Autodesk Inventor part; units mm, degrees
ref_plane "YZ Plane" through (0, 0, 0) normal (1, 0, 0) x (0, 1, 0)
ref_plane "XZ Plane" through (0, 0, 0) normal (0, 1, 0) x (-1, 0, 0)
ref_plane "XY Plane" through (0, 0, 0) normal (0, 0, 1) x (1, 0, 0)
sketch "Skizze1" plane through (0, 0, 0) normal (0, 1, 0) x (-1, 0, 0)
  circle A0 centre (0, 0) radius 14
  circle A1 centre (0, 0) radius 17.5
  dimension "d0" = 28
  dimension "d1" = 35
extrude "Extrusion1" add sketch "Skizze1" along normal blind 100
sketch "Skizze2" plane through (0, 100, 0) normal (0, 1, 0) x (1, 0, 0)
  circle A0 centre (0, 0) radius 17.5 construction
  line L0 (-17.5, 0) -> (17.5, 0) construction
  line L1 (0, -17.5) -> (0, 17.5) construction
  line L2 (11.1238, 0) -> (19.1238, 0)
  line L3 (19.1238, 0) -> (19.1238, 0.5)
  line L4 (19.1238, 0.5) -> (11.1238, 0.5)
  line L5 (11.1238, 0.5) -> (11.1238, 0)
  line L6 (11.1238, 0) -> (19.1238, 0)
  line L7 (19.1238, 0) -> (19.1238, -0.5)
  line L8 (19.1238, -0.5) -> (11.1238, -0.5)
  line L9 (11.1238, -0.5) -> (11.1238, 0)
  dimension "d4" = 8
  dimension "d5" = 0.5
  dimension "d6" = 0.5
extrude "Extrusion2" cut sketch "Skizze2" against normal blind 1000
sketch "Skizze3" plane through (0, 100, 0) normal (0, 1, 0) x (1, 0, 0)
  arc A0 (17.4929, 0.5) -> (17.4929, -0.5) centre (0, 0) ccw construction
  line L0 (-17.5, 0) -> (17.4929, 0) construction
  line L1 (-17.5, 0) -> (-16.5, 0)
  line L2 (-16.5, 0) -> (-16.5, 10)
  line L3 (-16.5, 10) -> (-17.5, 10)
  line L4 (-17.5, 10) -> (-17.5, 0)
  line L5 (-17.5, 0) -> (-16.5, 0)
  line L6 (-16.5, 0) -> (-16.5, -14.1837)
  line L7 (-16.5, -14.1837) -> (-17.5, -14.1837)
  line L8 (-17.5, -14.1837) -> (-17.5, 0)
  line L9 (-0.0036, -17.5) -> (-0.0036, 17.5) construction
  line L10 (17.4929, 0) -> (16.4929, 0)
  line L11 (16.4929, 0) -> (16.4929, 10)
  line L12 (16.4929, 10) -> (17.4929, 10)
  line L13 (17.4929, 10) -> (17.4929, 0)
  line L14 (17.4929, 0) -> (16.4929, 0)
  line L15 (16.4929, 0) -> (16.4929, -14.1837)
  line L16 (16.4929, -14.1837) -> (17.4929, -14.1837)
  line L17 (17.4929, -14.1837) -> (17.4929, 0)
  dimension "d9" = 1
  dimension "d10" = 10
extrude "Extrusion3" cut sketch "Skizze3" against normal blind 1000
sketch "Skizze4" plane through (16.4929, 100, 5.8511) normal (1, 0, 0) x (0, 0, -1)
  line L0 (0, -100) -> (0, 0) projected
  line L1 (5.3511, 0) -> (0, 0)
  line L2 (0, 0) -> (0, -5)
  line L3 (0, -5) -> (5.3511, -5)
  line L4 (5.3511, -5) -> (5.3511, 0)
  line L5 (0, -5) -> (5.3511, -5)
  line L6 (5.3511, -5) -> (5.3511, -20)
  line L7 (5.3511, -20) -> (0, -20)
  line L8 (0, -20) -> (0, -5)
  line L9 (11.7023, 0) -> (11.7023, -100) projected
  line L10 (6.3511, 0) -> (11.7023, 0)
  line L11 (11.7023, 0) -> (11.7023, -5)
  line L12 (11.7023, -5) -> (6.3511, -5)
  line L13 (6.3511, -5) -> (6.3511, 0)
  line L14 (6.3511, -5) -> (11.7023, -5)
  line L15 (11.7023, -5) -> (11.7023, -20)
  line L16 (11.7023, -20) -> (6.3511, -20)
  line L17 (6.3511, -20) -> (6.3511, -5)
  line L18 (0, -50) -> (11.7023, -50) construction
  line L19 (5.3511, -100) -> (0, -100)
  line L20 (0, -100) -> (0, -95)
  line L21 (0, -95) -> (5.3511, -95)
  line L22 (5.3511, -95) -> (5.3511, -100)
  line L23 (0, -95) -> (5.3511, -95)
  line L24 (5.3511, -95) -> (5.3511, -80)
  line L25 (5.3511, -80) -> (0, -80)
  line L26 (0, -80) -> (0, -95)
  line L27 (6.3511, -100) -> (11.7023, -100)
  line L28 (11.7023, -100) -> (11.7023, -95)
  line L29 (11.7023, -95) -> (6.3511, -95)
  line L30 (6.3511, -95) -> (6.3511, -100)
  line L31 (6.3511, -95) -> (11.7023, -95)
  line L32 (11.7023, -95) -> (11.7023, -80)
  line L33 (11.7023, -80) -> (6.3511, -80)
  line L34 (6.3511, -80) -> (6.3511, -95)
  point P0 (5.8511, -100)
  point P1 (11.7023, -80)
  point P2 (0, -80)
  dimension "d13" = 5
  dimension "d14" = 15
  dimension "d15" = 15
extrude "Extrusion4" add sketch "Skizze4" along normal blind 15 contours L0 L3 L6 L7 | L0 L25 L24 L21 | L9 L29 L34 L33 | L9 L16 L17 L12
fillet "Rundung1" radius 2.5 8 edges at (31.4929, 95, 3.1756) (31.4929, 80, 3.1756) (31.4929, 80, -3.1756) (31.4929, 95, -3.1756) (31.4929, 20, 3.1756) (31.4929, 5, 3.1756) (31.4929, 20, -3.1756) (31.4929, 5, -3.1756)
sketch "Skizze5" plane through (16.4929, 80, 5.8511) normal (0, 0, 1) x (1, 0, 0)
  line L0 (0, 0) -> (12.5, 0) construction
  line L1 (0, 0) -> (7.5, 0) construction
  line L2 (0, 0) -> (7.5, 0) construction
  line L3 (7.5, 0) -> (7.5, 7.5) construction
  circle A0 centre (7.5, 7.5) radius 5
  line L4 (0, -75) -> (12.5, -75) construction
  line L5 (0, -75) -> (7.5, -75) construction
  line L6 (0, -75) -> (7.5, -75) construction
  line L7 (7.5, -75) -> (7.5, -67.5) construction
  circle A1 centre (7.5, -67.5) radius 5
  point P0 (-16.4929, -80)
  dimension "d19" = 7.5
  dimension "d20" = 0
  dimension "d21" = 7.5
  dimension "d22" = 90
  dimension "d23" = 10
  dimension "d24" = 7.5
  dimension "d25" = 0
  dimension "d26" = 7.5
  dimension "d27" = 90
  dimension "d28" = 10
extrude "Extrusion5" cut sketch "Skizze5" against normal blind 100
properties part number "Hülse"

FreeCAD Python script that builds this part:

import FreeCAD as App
import Part
import Sketcher

V = App.Vector


def edges_at(feature, points):
    """Names of the edges that pass closest to the given points."""
    edges = feature.Shape.Edges
    near = lambda p: min(range(len(edges)), key=lambda i: edges[i].distToShape(Part.Vertex(*p))[0])
    return sorted({f"Edge{near(p) + 1}" for p in points})

doc = App.newDocument("Part")
body = doc.addObject("PartDesign::Body", "Body")

sketch1 = body.newObject("Sketcher::SketchObject", "Sketch")
sketch1.AttachmentSupport = (doc.getObject("XZ_Plane"), [""])
sketch1.MapMode = "FlatFace"
sketch1.addGeometry([
    Part.Circle(V(0, 0, 0), V(0, 0, 1), 17.5),
    Part.Circle(V(0, 0, 0), V(0, 0, 1), 14),
], False)
sketch1.addConstraint([
    Sketcher.Constraint("Coincident", 0, 3, -1, 1),
    Sketcher.Constraint("Coincident", 1, 3, -1, 1),
    Sketcher.Constraint("Diameter", 0, 35.0),
    Sketcher.Constraint("Diameter", 1, 28.0),
])
pad1 = body.newObject("PartDesign::Pad", "Pad")
pad1.Profile = sketch1
pad1.Length = 100
pad1.Reversed = True

sketch2 = body.newObject("Sketcher::SketchObject", "Sketch001")
sketch2.AttachmentSupport = (doc.getObject("XZ_Plane"), [""])
sketch2.MapMode = "FlatFace"
sketch2.AttachmentOffset = App.Placement(V(0, 0, -100), App.Rotation())
sketch2.addGeometry([
    Part.LineSegment(V(11.1238, -0.5, 0), V(11.1238, 0.5, 0)),
    Part.LineSegment(V(11.1238, 0.5, 0), V(19.1238, 0.5, 0)),
    Part.LineSegment(V(19.1238, 0.5, 0), V(19.1238, -0.5, 0)),
    Part.LineSegment(V(19.1238, -0.5, 0), V(11.1238, -0.5, 0)),
], False)
sketch2.addConstraint([
    Sketcher.Constraint("Coincident", 0, 2, 1, 1),
    Sketcher.Constraint("Coincident", 1, 2, 2, 1),
    Sketcher.Constraint("Coincident", 2, 2, 3, 1),
    Sketcher.Constraint("Coincident", 3, 2, 0, 1),
    Sketcher.Constraint("Vertical", 0),
    Sketcher.Constraint("Horizontal", 1),
    Sketcher.Constraint("Vertical", 2),
    Sketcher.Constraint("Horizontal", 3),
    Sketcher.Constraint("DistanceX", 1, 1, 1, 2, 8.0),
    Sketcher.Constraint("DistanceY", -1, 1, 0, 2, 0.5),
    Sketcher.Constraint("DistanceY", 2, 2, -1, 1, 0.5),
    Sketcher.Constraint("DistanceX", -1, 1, 0, 2, 11.1238),
])
pocket1 = body.newObject("PartDesign::Pocket", "Pocket")
pocket1.Profile = sketch2
pocket1.Length = 1000
pocket1.Reversed = True

sketch3 = body.newObject("Sketcher::SketchObject", "Sketch002")
sketch3.AttachmentSupport = (doc.getObject("XZ_Plane"), [""])
sketch3.MapMode = "FlatFace"
sketch3.AttachmentOffset = App.Placement(V(0, 0, -100), App.Rotation())
sketch3.addGeometry([
    Part.LineSegment(V(-17.5, -10, 0), V(-17.5, 14.1837, 0)),
    Part.LineSegment(V(-17.5, 14.1837, 0), V(-16.5, 14.1837, 0)),
    Part.LineSegment(V(-16.5, 14.1837, 0), V(-16.5, -10, 0)),
    Part.LineSegment(V(-16.5, -10, 0), V(-17.5, -10, 0)),
    Part.LineSegment(V(17.4929, 14.1837, 0), V(17.4929, -10, 0)),
    Part.LineSegment(V(17.4929, -10, 0), V(16.4929, -10, 0)),
    Part.LineSegment(V(16.4929, -10, 0), V(16.4929, 14.1837, 0)),
    Part.LineSegment(V(16.4929, 14.1837, 0), V(17.4929, 14.1837, 0)),
], False)
sketch3.addConstraint([
    Sketcher.Constraint("Coincident", 0, 2, 1, 1),
    Sketcher.Constraint("Coincident", 1, 2, 2, 1),
    Sketcher.Constraint("Coincident", 2, 2, 3, 1),
    Sketcher.Constraint("Coincident", 3, 2, 0, 1),
    Sketcher.Constraint("Coincident", 4, 2, 5, 1),
    Sketcher.Constraint("Coincident", 5, 2, 6, 1),
    Sketcher.Constraint("Coincident", 6, 2, 7, 1),
    Sketcher.Constraint("Coincident", 7, 2, 4, 1),
    Sketcher.Constraint("Vertical", 0),
    Sketcher.Constraint("Horizontal", 1),
    Sketcher.Constraint("Vertical", 2),
    Sketcher.Constraint("Horizontal", 3),
    Sketcher.Constraint("Vertical", 4),
    Sketcher.Constraint("Horizontal", 5),
    Sketcher.Constraint("Vertical", 6),
    Sketcher.Constraint("Horizontal", 7),
    Sketcher.Constraint("Horizontal", 3, 2, 4, 2),
    Sketcher.Constraint("Horizontal", 1, 2, 6, 2),
    Sketcher.Constraint("Equal", 3, 5),
    Sketcher.Constraint("DistanceX", 1, 1, 1, 2, 1.0),
    Sketcher.Constraint("DistanceY", 2, 2, -1, 1, 10.0),
    Sketcher.Constraint("DistanceX", 0, 2, -1, 1, 17.5),
    Sketcher.Constraint("DistanceY", 0, 1, 0, 2, 24.1837),
    Sketcher.Constraint("DistanceX", -1, 1, 4, 2, 17.493),
])
pocket2 = body.newObject("PartDesign::Pocket", "Pocket001")
pocket2.Profile = sketch3
pocket2.Length = 1000
pocket2.Reversed = True

sketch4 = body.newObject("Sketcher::SketchObject", "Sketch003")
sketch4.AttachmentSupport = (doc.getObject("YZ_Plane"), [""])
sketch4.MapMode = "FlatFace"
sketch4.AttachmentOffset = App.Placement(V(0, 0, 16.4929), App.Rotation())
sketch4.addGeometry([
    Part.LineSegment(V(95, 5.8511, 0), V(80, 5.8511, 0)),
    Part.LineSegment(V(80, 5.8511, 0), V(80, 0.5, 0)),
    Part.LineSegment(V(80, 0.5, 0), V(95, 0.5, 0)),
    Part.LineSegment(V(95, 0.5, 0), V(95, 5.8511, 0)),
    Part.LineSegment(V(20, 5.8511, 0), V(5, 5.8511, 0)),
    Part.LineSegment(V(5, 5.8511, 0), V(5, 0.5, 0)),
    Part.LineSegment(V(5, 0.5, 0), V(20, 0.5, 0)),
    Part.LineSegment(V(20, 0.5, 0), V(20, 5.8511, 0)),
    Part.LineSegment(V(5, -5.8512, 0), V(20, -5.8512, 0)),
    Part.LineSegment(V(20, -5.8512, 0), V(20, -0.5, 0)),
    Part.LineSegment(V(20, -0.5, 0), V(5, -0.5, 0)),
    Part.LineSegment(V(5, -0.5, 0), V(5, -5.8512, 0)),
    Part.LineSegment(V(80, -5.8512, 0), V(95, -5.8512, 0)),
    Part.LineSegment(V(95, -5.8512, 0), V(95, -0.5, 0)),
    Part.LineSegment(V(95, -0.5, 0), V(80, -0.5, 0)),
    Part.LineSegment(V(80, -0.5, 0), V(80, -5.8512, 0)),
], False)
sketch4.addConstraint([
    Sketcher.Constraint("Coincident", 0, 2, 1, 1),
    Sketcher.Constraint("Coincident", 1, 2, 2, 1),
    Sketcher.Constraint("Coincident", 2, 2, 3, 1),
    Sketcher.Constraint("Coincident", 3, 2, 0, 1),
    Sketcher.Constraint("Coincident", 4, 2, 5, 1),
    Sketcher.Constraint("Coincident", 5, 2, 6, 1),
    Sketcher.Constraint("Coincident", 6, 2, 7, 1),
    Sketcher.Constraint("Coincident", 7, 2, 4, 1),
    Sketcher.Constraint("Coincident", 8, 2, 9, 1),
    Sketcher.Constraint("Coincident", 9, 2, 10, 1),
    Sketcher.Constraint("Coincident", 10, 2, 11, 1),
    Sketcher.Constraint("Coincident", 11, 2, 8, 1),
    Sketcher.Constraint("Coincident", 12, 2, 13, 1),
    Sketcher.Constraint("Coincident", 13, 2, 14, 1),
    Sketcher.Constraint("Coincident", 14, 2, 15, 1),
    Sketcher.Constraint("Coincident", 15, 2, 12, 1),
    Sketcher.Constraint("Horizontal", 0),
    Sketcher.Constraint("Vertical", 1),
    Sketcher.Constraint("Horizontal", 2),
    Sketcher.Constraint("Vertical", 3),
    Sketcher.Constraint("Horizontal", 4),
    Sketcher.Constraint("Vertical", 5),
    Sketcher.Constraint("Horizontal", 6),
    Sketcher.Constraint("Vertical", 7),
    Sketcher.Constraint("Horizontal", 8),
    Sketcher.Constraint("Vertical", 9),
    Sketcher.Constraint("Horizontal", 10),
    Sketcher.Constraint("Vertical", 11),
    Sketcher.Constraint("Horizontal", 12),
    Sketcher.Constraint("Vertical", 13),
    Sketcher.Constraint("Horizontal", 14),
    Sketcher.Constraint("Vertical", 15),
    Sketcher.Constraint("Symmetric", 7, 2, 8, 2, -1),
    Sketcher.Constraint("Symmetric", 5, 2, 10, 2, -1),
    Sketcher.Constraint("Symmetric", 3, 2, 12, 2, -1),
    Sketcher.Constraint("Symmetric", 1, 2, 14, 2, -1),
    Sketcher.Constraint("Horizontal", 3, 2, 4, 2),
    Sketcher.Constraint("Horizontal", 2, 2, 5, 2),
    Sketcher.Constraint("Equal", 2, 4),
    Sketcher.Constraint("DistanceX", 0, 2, 0, 1, 15.0),
    Sketcher.Constraint("DistanceX", -1, 1, 4, 2, 5.0),
    Sketcher.Constraint("DistanceX", -1, 1, 0, 2, 80.0),
    Sketcher.Constraint("DistanceY", 9, 2, 6, 2, 1.0),
    Sketcher.Constraint("DistanceY", 1, 2, 1, 1, 5.351),
])
pad2 = body.newObject("PartDesign::Pad", "Pad001")
pad2.Profile = sketch4
pad2.Length = 15
doc.recompute()

fillet = body.newObject("PartDesign::Fillet", "Fillet")
fillet.Base = (pad2, edges_at(pad2, [
    (31.493, 95, 3.176),
    (31.493, 80, 3.176),
    (31.493, 80, -3.176),
    (31.493, 95, -3.176),
    (31.493, 20, 3.176),
    (31.493, 5, 3.176),
    (31.493, 20, -3.176),
    (31.493, 5, -3.176),
]))
fillet.Radius = 2.5

sketch5 = body.newObject("Sketcher::SketchObject", "Sketch004")
sketch5.AttachmentSupport = (doc.getObject("XY_Plane"), [""])
sketch5.MapMode = "FlatFace"
sketch5.AttachmentOffset = App.Placement(V(0, 0, 5.8511), App.Rotation())
sketch5.addGeometry([
    Part.Circle(V(23.9929, 87.5, 0), V(0, 0, 1), 5),
    Part.Circle(V(23.9929, 12.5, 0), V(0, 0, 1), 5),
], False)
sketch5.addConstraint([
    Sketcher.Constraint("Equal", 0, 1),
    Sketcher.Constraint("Vertical", 0, 3, 1, 3),
    Sketcher.Constraint("Diameter", 0, 10.0),
    Sketcher.Constraint("DistanceY", 1, 3, 0, 3, 75.0),
    Sketcher.Constraint("DistanceY", -1, 1, 0, 3, 87.5),
    Sketcher.Constraint("DistanceX", -1, 1, 0, 3, 23.993),
])
pocket3 = body.newObject("PartDesign::Pocket", "Pocket002")
pocket3.Profile = sketch5
pocket3.Length = 100

doc.recompute()
